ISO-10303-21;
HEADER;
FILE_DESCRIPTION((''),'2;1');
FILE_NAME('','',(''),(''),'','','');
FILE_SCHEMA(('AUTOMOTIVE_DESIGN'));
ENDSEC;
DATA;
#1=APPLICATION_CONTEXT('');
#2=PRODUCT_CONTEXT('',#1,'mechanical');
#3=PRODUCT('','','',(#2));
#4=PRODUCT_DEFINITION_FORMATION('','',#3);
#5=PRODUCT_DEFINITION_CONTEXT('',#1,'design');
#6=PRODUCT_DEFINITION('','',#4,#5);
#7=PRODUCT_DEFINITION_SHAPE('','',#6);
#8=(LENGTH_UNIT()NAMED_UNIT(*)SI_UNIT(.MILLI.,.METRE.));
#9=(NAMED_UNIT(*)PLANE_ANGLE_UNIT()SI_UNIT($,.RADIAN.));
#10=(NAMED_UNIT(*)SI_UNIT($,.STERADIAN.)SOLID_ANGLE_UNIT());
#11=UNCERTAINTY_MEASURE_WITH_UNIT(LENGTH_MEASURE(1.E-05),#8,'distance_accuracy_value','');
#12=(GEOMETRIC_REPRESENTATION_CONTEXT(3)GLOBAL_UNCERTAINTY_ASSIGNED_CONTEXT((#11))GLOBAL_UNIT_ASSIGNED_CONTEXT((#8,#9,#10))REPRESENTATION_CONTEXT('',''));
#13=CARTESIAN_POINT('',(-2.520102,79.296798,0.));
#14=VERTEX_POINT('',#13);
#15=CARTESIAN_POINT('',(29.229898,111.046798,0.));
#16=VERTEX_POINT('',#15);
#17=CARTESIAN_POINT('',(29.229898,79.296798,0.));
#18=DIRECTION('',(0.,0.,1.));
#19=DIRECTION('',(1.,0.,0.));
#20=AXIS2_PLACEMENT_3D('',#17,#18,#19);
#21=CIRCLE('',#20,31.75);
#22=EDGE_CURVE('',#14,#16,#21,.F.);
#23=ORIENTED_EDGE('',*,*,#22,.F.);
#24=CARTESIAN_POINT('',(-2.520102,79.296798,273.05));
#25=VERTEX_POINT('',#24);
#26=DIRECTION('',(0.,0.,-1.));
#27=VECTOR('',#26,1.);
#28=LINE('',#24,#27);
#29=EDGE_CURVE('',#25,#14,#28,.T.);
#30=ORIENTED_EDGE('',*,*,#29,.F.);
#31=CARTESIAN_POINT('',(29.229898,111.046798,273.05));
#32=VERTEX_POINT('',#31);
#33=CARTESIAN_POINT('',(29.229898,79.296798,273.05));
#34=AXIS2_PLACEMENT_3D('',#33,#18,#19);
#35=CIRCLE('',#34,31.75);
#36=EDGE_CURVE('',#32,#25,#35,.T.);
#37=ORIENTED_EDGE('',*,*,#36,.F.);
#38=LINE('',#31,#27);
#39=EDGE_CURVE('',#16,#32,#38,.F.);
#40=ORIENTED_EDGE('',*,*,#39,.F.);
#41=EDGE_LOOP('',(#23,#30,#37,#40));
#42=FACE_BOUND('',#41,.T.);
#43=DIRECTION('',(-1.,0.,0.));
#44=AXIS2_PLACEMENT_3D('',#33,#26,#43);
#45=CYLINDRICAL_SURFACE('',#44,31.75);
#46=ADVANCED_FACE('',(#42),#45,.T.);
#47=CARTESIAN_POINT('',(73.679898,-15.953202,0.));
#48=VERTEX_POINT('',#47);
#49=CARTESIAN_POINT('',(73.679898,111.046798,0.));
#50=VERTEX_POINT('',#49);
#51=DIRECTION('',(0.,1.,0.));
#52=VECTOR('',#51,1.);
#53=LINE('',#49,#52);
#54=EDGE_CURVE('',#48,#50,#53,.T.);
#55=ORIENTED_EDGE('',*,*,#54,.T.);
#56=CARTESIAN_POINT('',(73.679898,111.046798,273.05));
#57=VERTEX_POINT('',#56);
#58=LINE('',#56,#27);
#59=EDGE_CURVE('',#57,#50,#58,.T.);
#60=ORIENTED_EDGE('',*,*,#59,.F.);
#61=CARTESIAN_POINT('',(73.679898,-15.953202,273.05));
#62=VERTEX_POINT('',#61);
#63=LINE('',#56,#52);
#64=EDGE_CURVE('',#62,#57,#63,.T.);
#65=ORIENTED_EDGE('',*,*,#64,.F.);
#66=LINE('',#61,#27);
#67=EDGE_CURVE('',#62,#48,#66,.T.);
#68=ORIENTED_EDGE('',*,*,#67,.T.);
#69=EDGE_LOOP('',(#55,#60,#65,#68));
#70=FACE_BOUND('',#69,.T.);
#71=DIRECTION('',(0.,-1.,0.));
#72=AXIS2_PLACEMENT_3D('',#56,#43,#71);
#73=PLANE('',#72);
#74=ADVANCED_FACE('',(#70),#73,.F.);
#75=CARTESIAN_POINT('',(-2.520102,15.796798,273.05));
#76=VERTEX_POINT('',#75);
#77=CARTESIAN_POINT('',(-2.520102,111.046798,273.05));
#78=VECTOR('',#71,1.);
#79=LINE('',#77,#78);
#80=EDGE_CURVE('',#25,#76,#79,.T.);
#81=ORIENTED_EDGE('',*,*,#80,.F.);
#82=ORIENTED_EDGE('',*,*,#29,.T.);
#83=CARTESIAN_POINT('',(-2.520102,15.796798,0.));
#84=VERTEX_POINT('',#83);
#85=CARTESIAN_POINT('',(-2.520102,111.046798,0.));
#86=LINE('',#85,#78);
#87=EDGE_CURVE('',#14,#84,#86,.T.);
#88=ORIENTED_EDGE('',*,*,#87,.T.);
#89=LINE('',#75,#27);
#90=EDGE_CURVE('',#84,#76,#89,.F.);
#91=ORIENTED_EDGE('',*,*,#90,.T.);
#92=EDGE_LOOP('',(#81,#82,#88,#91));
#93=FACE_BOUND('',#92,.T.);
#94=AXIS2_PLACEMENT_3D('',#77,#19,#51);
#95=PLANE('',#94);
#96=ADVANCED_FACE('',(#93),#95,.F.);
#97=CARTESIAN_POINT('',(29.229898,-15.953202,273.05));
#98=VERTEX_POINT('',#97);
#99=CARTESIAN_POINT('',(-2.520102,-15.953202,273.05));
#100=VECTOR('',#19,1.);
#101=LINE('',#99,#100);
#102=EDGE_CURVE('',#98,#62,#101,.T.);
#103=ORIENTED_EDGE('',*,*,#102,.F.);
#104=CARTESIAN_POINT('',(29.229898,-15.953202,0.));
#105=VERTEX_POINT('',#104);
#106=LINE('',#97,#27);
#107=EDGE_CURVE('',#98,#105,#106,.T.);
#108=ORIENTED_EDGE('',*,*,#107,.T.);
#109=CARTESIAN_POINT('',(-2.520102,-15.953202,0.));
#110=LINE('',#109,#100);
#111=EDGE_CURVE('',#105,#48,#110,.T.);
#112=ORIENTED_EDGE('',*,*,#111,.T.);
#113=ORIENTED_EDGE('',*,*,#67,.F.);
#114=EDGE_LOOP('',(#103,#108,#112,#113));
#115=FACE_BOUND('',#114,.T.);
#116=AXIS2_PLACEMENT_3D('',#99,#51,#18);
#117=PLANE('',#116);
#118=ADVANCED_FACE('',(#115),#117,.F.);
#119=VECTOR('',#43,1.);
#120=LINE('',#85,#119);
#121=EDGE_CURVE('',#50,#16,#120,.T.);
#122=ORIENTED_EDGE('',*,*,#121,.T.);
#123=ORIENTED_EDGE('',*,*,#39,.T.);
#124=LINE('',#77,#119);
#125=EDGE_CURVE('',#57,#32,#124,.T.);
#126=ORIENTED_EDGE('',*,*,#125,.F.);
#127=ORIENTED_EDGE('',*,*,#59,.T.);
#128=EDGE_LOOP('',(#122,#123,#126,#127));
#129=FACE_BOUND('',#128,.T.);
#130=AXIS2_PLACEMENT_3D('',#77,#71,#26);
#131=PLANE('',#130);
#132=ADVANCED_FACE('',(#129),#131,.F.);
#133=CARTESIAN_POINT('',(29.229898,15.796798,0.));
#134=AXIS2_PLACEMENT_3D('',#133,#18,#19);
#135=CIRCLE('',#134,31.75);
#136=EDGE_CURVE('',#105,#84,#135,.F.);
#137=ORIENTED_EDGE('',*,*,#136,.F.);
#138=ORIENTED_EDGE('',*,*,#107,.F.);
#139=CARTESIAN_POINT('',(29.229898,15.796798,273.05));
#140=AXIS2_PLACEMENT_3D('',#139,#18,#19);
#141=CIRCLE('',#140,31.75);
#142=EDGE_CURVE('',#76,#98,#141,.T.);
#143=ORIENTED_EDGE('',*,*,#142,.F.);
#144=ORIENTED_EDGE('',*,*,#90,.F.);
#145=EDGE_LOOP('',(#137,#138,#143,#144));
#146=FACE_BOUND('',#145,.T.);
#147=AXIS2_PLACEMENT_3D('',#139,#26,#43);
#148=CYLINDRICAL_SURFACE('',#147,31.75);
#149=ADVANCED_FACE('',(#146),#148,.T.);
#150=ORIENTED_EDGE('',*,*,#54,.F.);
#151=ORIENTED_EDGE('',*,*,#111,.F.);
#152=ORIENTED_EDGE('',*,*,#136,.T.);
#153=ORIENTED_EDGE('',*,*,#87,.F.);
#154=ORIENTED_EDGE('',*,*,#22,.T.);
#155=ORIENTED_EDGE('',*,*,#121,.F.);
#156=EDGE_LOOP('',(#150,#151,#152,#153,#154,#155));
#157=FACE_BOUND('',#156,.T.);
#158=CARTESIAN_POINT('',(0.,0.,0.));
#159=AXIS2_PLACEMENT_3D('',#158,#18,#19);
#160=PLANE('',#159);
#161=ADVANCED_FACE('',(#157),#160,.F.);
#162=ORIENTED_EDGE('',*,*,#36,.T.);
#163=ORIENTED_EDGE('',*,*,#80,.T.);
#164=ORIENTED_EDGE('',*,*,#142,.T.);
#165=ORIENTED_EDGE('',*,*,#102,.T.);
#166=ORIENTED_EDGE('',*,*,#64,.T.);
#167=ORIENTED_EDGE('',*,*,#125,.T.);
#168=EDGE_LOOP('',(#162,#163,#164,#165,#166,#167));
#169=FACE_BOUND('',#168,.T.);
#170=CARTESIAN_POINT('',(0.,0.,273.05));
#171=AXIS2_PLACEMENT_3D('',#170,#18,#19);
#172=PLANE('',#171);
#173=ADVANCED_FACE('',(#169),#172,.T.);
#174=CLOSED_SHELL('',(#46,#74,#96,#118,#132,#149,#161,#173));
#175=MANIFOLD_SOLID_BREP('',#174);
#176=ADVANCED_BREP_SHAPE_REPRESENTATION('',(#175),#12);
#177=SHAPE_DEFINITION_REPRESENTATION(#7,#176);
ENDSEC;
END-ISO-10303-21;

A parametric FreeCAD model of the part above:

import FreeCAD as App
import Part
import Sketcher
from FreeCAD import Vector
Q = App.Units.Quantity


def edges_at(feature, points):
    """Names of the edges that pass closest to the given points."""
    edges = feature.Shape.Edges
    near = lambda p: min(range(len(edges)), key=lambda i: edges[i].distToShape(Part.Vertex(*p))[0])
    return sorted({f"Edge{near(p) + 1}" for p in points})


def add_polygon(sketch, points):
    """Adds a closed chain of lines whose ends are joined by coincident constraints."""
    first, n = sketch.GeometryCount, len(points)
    for a, b in zip(points, points[1:] + points[:1]):
        sketch.addGeometry(Part.LineSegment(App.Vector(*a, 0), App.Vector(*b, 0)), False)
    for i in range(n):
        sketch.addConstraint(Sketcher.Constraint("Coincident", first + i, 2, first + (i + 1) % n, 1))

doc = App.newDocument("Part")
body = doc.addObject("PartDesign::Body", "Body")

sketch1 = body.newObject("Sketcher::SketchObject", "Sketch")
sketch1.AttachmentSupport = (doc.getObject("XY_Plane"), [""])
sketch1.MapMode = "FlatFace"
add_polygon(sketch1, [(-3, 111), (-3, -16), (74, -16), (74, 111)])
sketch1.addConstraint([
    Sketcher.Constraint("Vertical", 0),
    Sketcher.Constraint("Horizontal", 1),
    Sketcher.Constraint("Vertical", 2),
    Sketcher.Constraint("Horizontal", 3),
    Sketcher.Constraint("DistanceX", 1, 1, 1, 2, Q("3 in")),
    Sketcher.Constraint("DistanceY", 0, 2, 0, 1, Q("5 in")),
    Sketcher.Constraint("DistanceX", 0, 2, -1, 1, 2.520102),
    Sketcher.Constraint("DistanceY", 0, 2, -1, 1, 15.953202),
])
pad1 = body.newObject("PartDesign::Pad", "Pad")
pad1.Profile = sketch1
pad1.Length = Q("10.75 in")
doc.recompute()

fillet = body.newObject("PartDesign::Fillet", "Fillet")
fillet.Base = (pad1, edges_at(pad1, [(-2.52, 111.047, 136.525), (-2.52, -15.953, 136.525)]))
fillet.Radius = Q("1.25 in")

doc.recompute()
